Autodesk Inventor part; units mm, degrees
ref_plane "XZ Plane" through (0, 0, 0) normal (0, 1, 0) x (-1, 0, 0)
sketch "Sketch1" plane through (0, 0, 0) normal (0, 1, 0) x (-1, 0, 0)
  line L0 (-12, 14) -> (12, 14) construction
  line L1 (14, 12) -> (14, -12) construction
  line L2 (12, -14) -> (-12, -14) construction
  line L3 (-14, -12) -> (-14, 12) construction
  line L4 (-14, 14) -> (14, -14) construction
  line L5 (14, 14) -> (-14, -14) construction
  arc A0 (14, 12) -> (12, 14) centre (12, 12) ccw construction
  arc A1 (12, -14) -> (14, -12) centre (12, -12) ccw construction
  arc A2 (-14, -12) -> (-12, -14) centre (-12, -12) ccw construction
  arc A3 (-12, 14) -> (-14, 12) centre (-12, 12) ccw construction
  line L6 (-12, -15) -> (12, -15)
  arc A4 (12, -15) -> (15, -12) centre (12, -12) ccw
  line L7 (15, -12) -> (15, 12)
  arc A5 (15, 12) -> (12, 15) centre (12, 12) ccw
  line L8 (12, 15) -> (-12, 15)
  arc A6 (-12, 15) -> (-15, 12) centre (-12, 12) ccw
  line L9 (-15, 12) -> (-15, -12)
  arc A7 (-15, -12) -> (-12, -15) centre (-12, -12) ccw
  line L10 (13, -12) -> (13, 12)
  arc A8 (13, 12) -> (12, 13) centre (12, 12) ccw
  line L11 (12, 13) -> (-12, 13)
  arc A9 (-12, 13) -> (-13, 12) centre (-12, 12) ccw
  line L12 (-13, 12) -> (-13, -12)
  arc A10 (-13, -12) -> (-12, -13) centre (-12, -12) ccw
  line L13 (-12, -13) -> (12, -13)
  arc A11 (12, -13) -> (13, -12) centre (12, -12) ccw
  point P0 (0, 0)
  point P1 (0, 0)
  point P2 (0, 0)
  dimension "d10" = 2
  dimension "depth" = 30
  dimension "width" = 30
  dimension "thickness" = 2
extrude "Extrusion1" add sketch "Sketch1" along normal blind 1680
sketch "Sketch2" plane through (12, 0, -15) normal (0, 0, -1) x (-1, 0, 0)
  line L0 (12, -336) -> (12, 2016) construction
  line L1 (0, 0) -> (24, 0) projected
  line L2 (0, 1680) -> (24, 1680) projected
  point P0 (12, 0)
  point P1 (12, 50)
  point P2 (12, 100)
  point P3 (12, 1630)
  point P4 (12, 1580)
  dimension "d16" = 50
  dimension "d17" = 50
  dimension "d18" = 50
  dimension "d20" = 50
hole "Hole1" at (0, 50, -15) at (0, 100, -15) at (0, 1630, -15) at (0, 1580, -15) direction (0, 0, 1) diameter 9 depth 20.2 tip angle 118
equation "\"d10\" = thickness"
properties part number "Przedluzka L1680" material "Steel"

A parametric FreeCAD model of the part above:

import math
import FreeCAD as App
import Part
import Sketcher
from FreeCAD import Vector
Q = App.Units.Quantity

doc = App.newDocument("Part")
params = doc.addObject("Spreadsheet::Sheet", "Params")
for row, (alias, value) in enumerate([
    ("sketch1_radius", "1 mm"),
    ("sketch1_radius2", "3 mm"),
    ("sketch1_width", "24 mm"),
    ("pad1_length", "1680 mm"),
    ("sketch2_diameter", "9 mm"),
    ("hole_diameter", "9 mm"),
    ("hole_depth", "20.2 mm"),
], start=1):
    params.set(f"A{row}", alias)
    params.set(f"B{row}", "=" + value)
    params.setAlias(f"B{row}", alias)

body = doc.addObject("PartDesign::Body", "Body")

# Sketch on XZ plane
sketch1 = body.newObject("Sketcher::SketchObject", "Sketch")
sketch1.AttachmentSupport = (doc.getObject("XZ_Plane"), [""])
sketch1.MapMode = "FlatFace"
sketch1.addGeometry([
    Part.ArcOfCircle(Part.Circle(Vector(12, -12, 0), Vector(0, 0, 1), 3), math.radians(-90), math.radians(0)),  # 0
    Part.LineSegment(Vector(12, -15, 0), Vector(-12, -15, 0)),  # 1
    Part.ArcOfCircle(Part.Circle(Vector(-12, -12, 0), Vector(0, 0, 1), 3), math.radians(180), math.radians(270)),  # 2
    Part.LineSegment(Vector(-15, -12, 0), Vector(-15, 12, 0)),  # 3
    Part.ArcOfCircle(Part.Circle(Vector(-12, 12, 0), Vector(0, 0, 1), 3), math.radians(90), math.radians(180)),  # 4
    Part.LineSegment(Vector(-12, 15, 0), Vector(12, 15, 0)),  # 5
    Part.ArcOfCircle(Part.Circle(Vector(12, 12, 0), Vector(0, 0, 1), 3), math.radians(0), math.radians(90)),  # 6
    Part.LineSegment(Vector(15, 12, 0), Vector(15, -12, 0)),  # 7
    Part.LineSegment(Vector(-13, 12, 0), Vector(-13, -12, 0)),  # 8
    Part.ArcOfCircle(Part.Circle(Vector(-12, -12, 0), Vector(0, 0, 1), 1), math.radians(180), math.radians(270)),  # 9
    Part.LineSegment(Vector(-12, -13, 0), Vector(12, -13, 0)),  # 10
    Part.ArcOfCircle(Part.Circle(Vector(12, -12, 0), Vector(0, 0, 1), 1), math.radians(-90), math.radians(0)),  # 11
    Part.LineSegment(Vector(13, -12, 0), Vector(13, 12, 0)),  # 12
    Part.ArcOfCircle(Part.Circle(Vector(12, 12, 0), Vector(0, 0, 1), 1), math.radians(0), math.radians(90)),  # 13
    Part.LineSegment(Vector(12, 13, 0), Vector(-12, 13, 0)),  # 14
    Part.ArcOfCircle(Part.Circle(Vector(-12, 12, 0), Vector(0, 0, 1), 1), math.radians(90), math.radians(180)),  # 15
], False)
sketch1.addConstraint([
    Sketcher.Constraint("Tangent", 0, 1, 1, 1),
    Sketcher.Constraint("Tangent", 1, 2, 2, 2),
    Sketcher.Constraint("Tangent", 2, 1, 3, 1),
    Sketcher.Constraint("Tangent", 3, 2, 4, 2),
    Sketcher.Constraint("Tangent", 4, 1, 5, 1),
    Sketcher.Constraint("Tangent", 5, 2, 6, 2),
    Sketcher.Constraint("Tangent", 6, 1, 7, 1),
    Sketcher.Constraint("Tangent", 7, 2, 0, 2),
    Sketcher.Constraint("Tangent", 8, 2, 9, 1),
    Sketcher.Constraint("Tangent", 9, 2, 10, 1),
    Sketcher.Constraint("Tangent", 10, 2, 11, 1),
    Sketcher.Constraint("Tangent", 11, 2, 12, 1),
    Sketcher.Constraint("Tangent", 12, 2, 13, 1),
    Sketcher.Constraint("Tangent", 13, 2, 14, 1),
    Sketcher.Constraint("Tangent", 14, 2, 15, 1),
    Sketcher.Constraint("Tangent", 15, 2, 8, 1),
    Sketcher.Constraint("Horizontal", 1),
    Sketcher.Constraint("Vertical", 3),
    Sketcher.Constraint("Horizontal", 5),
    Sketcher.Constraint("Vertical", 7),
    Sketcher.Constraint("Vertical", 8),
    Sketcher.Constraint("Horizontal", 10),
    Sketcher.Constraint("Vertical", 12),
    Sketcher.Constraint("Horizontal", 14),
    Sketcher.Constraint("Coincident", 9, 3, 2, 3),
    Sketcher.Constraint("Coincident", 11, 3, 0, 3),
    Sketcher.Constraint("Coincident", 13, 3, 6, 3),
    Sketcher.Constraint("Equal", 0, 2),
    Sketcher.Constraint("Equal", 2, 4),
    Sketcher.Constraint("Equal", 4, 6),
    Sketcher.Constraint("Equal", 13, 15),
    Sketcher.Constraint("Symmetric", 0, 3, 4, 3, -1, 1),
    Sketcher.Constraint("Equal", 14, 3),
    Sketcher.Constraint("Radius", 9, Q("1 mm")),
    Sketcher.Constraint("Radius", 0, Q("3 mm")),
    Sketcher.Constraint("DistanceX", 1, 2, 1, 1, Q("24 mm")),
])
sketch1.setExpression("Constraints[33]", "Params.sketch1_radius")
sketch1.setExpression("Constraints[34]", "Params.sketch1_radius2")
sketch1.setExpression("Constraints[35]", "Params.sketch1_width")
pad1 = body.newObject("PartDesign::Pad", "Pad")
pad1.Profile = sketch1
pad1.setExpression("Length", "Params.pad1_length")
pad1.Reversed = True

# Sketch on XY plane
sketch2 = body.newObject("Sketcher::SketchObject", "Sketch001")
sketch2.AttachmentSupport = (doc.getObject("XY_Plane"), [""])
sketch2.MapMode = "FlatFace"
sketch2.AttachmentOffset = App.Placement(Vector(0, 0, -15), App.Rotation())
sketch2.addGeometry([
    Part.Circle(Vector(0, 50, 0), Vector(0, 0, 1), 4.5),
    Part.Circle(Vector(0, 100, 0), Vector(0, 0, 1), 4.5),
    Part.Circle(Vector(0, 1630, 0), Vector(0, 0, 1), 4.5),
    Part.Circle(Vector(0, 1580, 0), Vector(0, 0, 1), 4.5),
], False)
sketch2.addConstraint([
    Sketcher.Constraint("Equal", 0, 1),
    Sketcher.Constraint("Equal", 1, 2),
    Sketcher.Constraint("Equal", 2, 3),
    Sketcher.Constraint("PointOnObject", 0, 3, -2),
    Sketcher.Constraint("PointOnObject", 1, 3, -2),
    Sketcher.Constraint("PointOnObject", 2, 3, -2),
    Sketcher.Constraint("PointOnObject", 3, 3, -2),
    Sketcher.Constraint("Diameter", 0, Q("9 mm")),
    Sketcher.Constraint("DistanceY", -1, 1, 0, 3, Q("50 mm")),
    Sketcher.Constraint("DistanceY", -1, 1, 1, 3, Q("100 mm")),
    Sketcher.Constraint("DistanceY", -1, 1, 2, 3, Q("1630 mm")),
    Sketcher.Constraint("DistanceY", -1, 1, 3, 3, Q("1580 mm")),
])
sketch2.setExpression("Constraints[7]", "Params.sketch2_diameter")
doc.recompute()
hole = body.newObject("PartDesign::Hole", "Hole")
hole.Profile = sketch2
hole.ThreadType = "None"
hole.setExpression("Diameter", "Params.hole_diameter")
hole.DepthType = "Dimension"
hole.setExpression("Depth", "Params.hole_depth")
hole.DrillPoint = "Angled"
hole.DrillPointAngle = 118
hole.Reversed = True

doc.recompute()
